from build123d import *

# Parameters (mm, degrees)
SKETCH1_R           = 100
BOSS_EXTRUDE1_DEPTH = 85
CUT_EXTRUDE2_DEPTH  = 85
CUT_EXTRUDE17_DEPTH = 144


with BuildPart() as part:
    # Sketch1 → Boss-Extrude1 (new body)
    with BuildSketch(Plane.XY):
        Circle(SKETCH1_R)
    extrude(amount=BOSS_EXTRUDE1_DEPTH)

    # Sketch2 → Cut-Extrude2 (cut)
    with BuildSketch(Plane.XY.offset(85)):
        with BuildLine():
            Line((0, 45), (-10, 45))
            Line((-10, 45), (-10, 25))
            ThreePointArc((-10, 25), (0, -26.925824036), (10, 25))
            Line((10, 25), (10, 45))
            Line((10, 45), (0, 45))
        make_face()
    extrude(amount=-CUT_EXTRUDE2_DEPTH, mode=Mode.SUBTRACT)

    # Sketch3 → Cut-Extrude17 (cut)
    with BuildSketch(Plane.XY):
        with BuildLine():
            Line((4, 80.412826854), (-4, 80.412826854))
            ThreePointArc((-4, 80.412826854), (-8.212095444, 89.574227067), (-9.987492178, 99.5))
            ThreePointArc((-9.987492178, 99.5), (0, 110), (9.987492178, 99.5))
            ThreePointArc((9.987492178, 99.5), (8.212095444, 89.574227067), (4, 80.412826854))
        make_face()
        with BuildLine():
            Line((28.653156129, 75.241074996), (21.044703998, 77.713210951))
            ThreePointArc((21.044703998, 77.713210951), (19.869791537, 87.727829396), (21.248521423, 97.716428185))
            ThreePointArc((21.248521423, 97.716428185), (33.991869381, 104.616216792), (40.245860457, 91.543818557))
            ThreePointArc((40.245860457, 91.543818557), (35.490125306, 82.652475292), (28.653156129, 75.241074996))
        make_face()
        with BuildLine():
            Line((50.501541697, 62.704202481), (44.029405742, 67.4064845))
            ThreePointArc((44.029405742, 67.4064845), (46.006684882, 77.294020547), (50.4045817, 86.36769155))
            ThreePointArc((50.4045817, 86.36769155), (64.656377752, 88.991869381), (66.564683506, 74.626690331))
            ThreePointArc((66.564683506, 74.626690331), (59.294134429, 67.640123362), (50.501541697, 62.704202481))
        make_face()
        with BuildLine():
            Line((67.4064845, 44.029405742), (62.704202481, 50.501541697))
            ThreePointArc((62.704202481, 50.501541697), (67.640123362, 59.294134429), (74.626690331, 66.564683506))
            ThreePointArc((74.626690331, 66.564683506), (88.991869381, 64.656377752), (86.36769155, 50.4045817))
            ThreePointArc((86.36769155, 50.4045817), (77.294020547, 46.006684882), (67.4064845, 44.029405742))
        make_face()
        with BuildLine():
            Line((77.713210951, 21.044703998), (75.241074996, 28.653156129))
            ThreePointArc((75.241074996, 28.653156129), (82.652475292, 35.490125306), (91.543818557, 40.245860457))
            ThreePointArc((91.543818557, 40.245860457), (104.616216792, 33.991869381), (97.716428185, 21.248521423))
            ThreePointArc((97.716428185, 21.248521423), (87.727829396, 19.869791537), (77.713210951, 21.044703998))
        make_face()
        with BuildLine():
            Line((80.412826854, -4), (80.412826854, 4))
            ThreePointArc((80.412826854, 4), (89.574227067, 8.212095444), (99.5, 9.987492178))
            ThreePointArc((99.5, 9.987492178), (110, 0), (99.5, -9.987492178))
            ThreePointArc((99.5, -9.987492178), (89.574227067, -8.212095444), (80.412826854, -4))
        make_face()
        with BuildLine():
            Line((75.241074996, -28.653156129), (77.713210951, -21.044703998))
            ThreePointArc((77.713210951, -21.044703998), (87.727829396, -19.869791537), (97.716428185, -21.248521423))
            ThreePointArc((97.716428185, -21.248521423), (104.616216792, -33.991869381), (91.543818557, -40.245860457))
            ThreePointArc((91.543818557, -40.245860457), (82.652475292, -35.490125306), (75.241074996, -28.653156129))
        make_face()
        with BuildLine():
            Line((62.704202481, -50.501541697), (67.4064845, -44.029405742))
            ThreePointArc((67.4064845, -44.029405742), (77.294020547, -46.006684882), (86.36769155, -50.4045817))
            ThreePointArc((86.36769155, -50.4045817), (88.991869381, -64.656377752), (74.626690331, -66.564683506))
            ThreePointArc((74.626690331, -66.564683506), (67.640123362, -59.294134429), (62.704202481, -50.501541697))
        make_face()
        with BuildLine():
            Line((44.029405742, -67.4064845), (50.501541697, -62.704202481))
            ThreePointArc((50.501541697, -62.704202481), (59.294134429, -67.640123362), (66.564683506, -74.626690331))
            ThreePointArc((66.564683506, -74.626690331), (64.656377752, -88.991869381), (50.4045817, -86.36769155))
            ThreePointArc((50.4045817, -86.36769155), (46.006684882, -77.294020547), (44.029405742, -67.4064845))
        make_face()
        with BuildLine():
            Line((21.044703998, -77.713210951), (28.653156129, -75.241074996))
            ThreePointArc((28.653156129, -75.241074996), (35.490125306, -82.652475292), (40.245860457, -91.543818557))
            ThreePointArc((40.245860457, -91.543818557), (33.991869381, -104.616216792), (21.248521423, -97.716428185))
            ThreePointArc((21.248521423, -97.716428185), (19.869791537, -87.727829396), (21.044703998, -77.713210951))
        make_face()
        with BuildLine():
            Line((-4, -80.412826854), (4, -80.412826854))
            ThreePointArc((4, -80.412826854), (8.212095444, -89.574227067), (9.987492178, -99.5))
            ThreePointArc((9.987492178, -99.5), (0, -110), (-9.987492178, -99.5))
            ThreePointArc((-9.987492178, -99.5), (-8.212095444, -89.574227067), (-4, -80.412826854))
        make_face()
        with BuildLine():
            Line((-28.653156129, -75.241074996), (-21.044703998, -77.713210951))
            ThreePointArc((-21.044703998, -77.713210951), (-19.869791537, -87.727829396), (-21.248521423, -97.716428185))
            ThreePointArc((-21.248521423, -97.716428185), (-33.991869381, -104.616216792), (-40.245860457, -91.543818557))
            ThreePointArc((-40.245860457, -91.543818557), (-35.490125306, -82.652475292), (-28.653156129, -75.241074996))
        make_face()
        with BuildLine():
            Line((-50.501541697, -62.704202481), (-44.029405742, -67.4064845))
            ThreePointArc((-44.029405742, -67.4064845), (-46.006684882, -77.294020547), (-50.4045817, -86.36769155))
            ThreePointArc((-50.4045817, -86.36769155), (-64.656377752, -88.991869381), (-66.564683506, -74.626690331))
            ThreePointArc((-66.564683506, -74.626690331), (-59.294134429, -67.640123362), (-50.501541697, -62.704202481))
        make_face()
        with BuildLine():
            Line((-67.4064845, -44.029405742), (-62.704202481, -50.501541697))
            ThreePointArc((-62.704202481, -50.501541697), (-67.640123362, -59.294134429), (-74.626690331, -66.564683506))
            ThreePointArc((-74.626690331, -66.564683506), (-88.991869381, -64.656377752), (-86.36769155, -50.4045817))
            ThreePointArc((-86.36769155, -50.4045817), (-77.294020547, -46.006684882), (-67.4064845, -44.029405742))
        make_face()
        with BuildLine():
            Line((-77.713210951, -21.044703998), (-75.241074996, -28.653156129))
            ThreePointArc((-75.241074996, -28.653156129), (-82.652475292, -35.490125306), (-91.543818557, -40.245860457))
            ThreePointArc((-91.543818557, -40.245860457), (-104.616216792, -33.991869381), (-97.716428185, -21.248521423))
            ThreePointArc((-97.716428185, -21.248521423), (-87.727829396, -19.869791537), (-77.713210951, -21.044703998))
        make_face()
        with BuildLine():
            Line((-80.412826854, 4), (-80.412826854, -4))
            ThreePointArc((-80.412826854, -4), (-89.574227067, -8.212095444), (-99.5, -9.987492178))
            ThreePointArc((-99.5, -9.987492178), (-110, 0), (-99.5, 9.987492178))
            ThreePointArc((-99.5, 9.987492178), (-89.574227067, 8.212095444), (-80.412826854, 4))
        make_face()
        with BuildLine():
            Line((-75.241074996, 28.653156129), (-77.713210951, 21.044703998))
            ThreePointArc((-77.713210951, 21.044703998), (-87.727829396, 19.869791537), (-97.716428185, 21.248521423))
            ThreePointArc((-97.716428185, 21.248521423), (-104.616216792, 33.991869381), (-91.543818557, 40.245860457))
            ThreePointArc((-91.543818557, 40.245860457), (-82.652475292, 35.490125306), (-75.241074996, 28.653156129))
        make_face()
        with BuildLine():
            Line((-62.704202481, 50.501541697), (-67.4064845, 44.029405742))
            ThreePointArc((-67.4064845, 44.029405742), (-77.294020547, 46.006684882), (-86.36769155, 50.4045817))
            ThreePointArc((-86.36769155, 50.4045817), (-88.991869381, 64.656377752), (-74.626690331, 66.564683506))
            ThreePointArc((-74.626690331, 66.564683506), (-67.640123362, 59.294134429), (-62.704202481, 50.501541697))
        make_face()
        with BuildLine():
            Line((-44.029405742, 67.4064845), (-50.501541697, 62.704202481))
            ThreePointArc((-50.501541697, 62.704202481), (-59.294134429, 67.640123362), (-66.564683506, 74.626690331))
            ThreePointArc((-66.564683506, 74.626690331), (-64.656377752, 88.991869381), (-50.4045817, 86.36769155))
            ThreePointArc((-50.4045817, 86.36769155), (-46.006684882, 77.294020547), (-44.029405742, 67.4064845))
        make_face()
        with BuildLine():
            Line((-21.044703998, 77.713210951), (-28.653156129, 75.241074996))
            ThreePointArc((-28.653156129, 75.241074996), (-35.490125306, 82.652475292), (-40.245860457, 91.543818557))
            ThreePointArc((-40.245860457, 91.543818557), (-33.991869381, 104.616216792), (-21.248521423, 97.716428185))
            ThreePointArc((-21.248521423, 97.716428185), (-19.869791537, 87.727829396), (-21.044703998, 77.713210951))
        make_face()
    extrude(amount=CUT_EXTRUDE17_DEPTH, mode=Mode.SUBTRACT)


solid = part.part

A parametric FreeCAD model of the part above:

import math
import FreeCAD as App
import Part
import Sketcher

V = App.Vector
Q = App.Units.Quantity

doc = App.newDocument("Part")
body = doc.addObject("PartDesign::Body", "Body")

# Sketch on XY plane
sketch1 = doc.addObject("Sketcher::SketchObject", "Sketch")
body.addObject(sketch1)
sketch1.AttachmentSupport = (doc.XY_Plane, [""])
sketch1.MapMode = "FlatFace"
sketch1.addGeometry(Part.Circle(V(0, 0, 0), V(0, 0, 1), 100), False)
sketch1.addConstraint([
    Sketcher.Constraint("Coincident", 0, 3, -1, 1),
    Sketcher.Constraint("Diameter", 0, 200.0),
])
pad1 = doc.addObject("PartDesign::Pad", "Pad")
body.addObject(pad1)
pad1.Profile = sketch1
pad1.Length = 85

# Sketch on XY plane
sketch2 = doc.addObject("Sketcher::SketchObject", "Sketch001")
body.addObject(sketch2)
sketch2.AttachmentSupport = (doc.XY_Plane, [""])
sketch2.MapMode = "FlatFace"
sketch2.AttachmentOffset = App.Placement(V(0, 0, 85), App.Rotation())
sketch2.addGeometry([
    Part.LineSegment(V(-10, 45, 0), V(-10, 25, 0)),
    Part.ArcOfCircle(Part.Circle(V(0, 0, 0), V(0, 0, 1), 26.925824), math.radians(111.801409), math.radians(428.198591)),
    Part.LineSegment(V(10, 25, 0), V(10, 45, 0)),
    Part.LineSegment(V(10, 45, 0), V(-10, 45, 0)),
], False)
sketch2.addConstraint([
    Sketcher.Constraint("Coincident", 0, 2, 1, 1),
    Sketcher.Constraint("Coincident", 1, 2, 2, 1),
    Sketcher.Constraint("Coincident", 2, 2, 3, 1),
    Sketcher.Constraint("Coincident", 3, 2, 0, 1),
    Sketcher.Constraint("Vertical", 0),
    Sketcher.Constraint("Vertical", 2),
    Sketcher.Constraint("Horizontal", 3),
    Sketcher.Constraint("Coincident", 1, 3, -1, 1),
    Sketcher.Constraint("Horizontal", 0, 2, 1, 2),
    Sketcher.Constraint("Equal", 3, 0),
    Sketcher.Constraint("DistanceX", 3, 2, 3, 1, 20.0),
    Sketcher.Constraint("DistanceY", -1, 1, 0, 2, 25.0),
])
pocket1 = doc.addObject("PartDesign::Pocket", "Pocket")
body.addObject(pocket1)
pocket1.Profile = sketch2
pocket1.Length = 85

# Sketch on XY plane
sketch3 = doc.addObject("Sketcher::SketchObject", "Sketch002")
body.addObject(sketch3)
sketch3.AttachmentSupport = (doc.XY_Plane, [""])
sketch3.MapMode = "FlatFace"
sketch3.addGeometry([
    Part.LineSegment(V(-4, 80.412827, 0), V(4, 80.412827, 0)),  # 0
    Part.ArcOfCircle(Part.Circle(V(-29.775539, 101.490641, 0), V(0, 0, 1), 39.812828), math.radians(-31.966456), math.radians(-2.865984)),  # 1
    Part.ArcOfCircle(Part.Circle(V(0, 100, 0), V(0, 0, 1), 10), math.radians(-2.865984), math.radians(182.865984)),  # 2
    Part.ArcOfCircle(Part.Circle(V(29.775539, 101.490641, 0), V(0, 0, 1), 39.812828), math.radians(-177.134016), math.radians(-148.033544)),  # 3
    Part.LineSegment(V(21.044704, 77.713211, 0), V(28.653156, 75.241075, 0)),  # 4
    Part.ArcOfCircle(Part.Circle(V(3.044113, 105.724483, 0), V(0, 0, 1), 39.812828), math.radians(-49.966456), math.radians(-20.865984)),  # 5
    Part.ArcOfCircle(Part.Circle(V(30.901699, 95.105652, 0), V(0, 0, 1), 10), math.radians(-20.865984), math.radians(164.865984)),  # 6
    Part.ArcOfCircle(Part.Circle(V(59.680553, 87.322188, 0), V(0, 0, 1), 39.812828), math.radians(164.865984), math.radians(193.966456)),  # 7
    Part.LineSegment(V(44.029406, 67.406485, 0), V(50.501542, 62.704202, 0)),  # 8
    Part.ArcOfCircle(Part.Circle(V(35.565785, 99.609276, 0), V(0, 0, 1), 39.812828), math.radians(-67.966456), math.radians(-38.865984)),  # 9
    Part.ArcOfCircle(Part.Circle(V(58.778525, 80.901699, 0), V(0, 0, 1), 10), math.radians(-38.865984), math.radians(146.865984)),  # 10
    Part.ArcOfCircle(Part.Circle(V(83.743619, 64.606031, 0), V(0, 0, 1), 39.812828), math.radians(146.865984), math.radians(175.966456)),  # 11
    Part.LineSegment(V(62.704202, 50.501542, 0), V(67.406485, 44.029406, 0)),  # 12
    Part.ArcOfCircle(Part.Circle(V(64.606031, 83.743619, 0), V(0, 0, 1), 39.812828), math.radians(-85.966456), math.radians(-56.865984)),  # 13
    Part.ArcOfCircle(Part.Circle(V(80.901699, 58.778525, 0), V(0, 0, 1), 10), math.radians(-56.865984), math.radians(128.865984)),  # 14
    Part.ArcOfCircle(Part.Circle(V(99.609276, 35.565785, 0), V(0, 0, 1), 39.812828), math.radians(128.865984), math.radians(157.966456)),  # 15
    Part.LineSegment(V(75.241075, 28.653156, 0), V(77.713211, 21.044704, 0)),  # 16
    Part.ArcOfCircle(Part.Circle(V(87.322188, 59.680553, 0), V(0, 0, 1), 39.812828), math.radians(-103.966456), math.radians(-74.865984)),  # 17
    Part.ArcOfCircle(Part.Circle(V(95.105652, 30.901699, 0), V(0, 0, 1), 10), math.radians(-74.865984), math.radians(110.865984)),  # 18
    Part.ArcOfCircle(Part.Circle(V(105.724483, 3.044113, 0), V(0, 0, 1), 39.812828), math.radians(110.865984), math.radians(139.966456)),  # 19
    Part.LineSegment(V(80.412827, 4, 0), V(80.412827, -4, 0)),  # 20
    Part.ArcOfCircle(Part.Circle(V(101.490641, 29.775539, 0), V(0, 0, 1), 39.812828), math.radians(-121.966456), math.radians(-92.865984)),  # 21
    Part.ArcOfCircle(Part.Circle(V(100, 0, 0), V(0, 0, 1), 10), math.radians(-92.865984), math.radians(92.865984)),  # 22
    Part.ArcOfCircle(Part.Circle(V(101.490641, -29.775539, 0), V(0, 0, 1), 39.812828), math.radians(92.865984), math.radians(121.966456)),  # 23
    Part.LineSegment(V(77.713211, -21.044704, 0), V(75.241075, -28.653156, 0)),  # 24
    Part.ArcOfCircle(Part.Circle(V(105.724483, -3.044113, 0), V(0, 0, 1), 39.812828), math.radians(-139.966456), math.radians(-110.865984)),  # 25
    Part.ArcOfCircle(Part.Circle(V(95.105652, -30.901699, 0), V(0, 0, 1), 10), math.radians(-110.865984), math.radians(74.865984)),  # 26
    Part.ArcOfCircle(Part.Circle(V(87.322188, -59.680553, 0), V(0, 0, 1), 39.812828), math.radians(74.865984), math.radians(103.966456)),  # 27
    Part.LineSegment(V(67.406485, -44.029406, 0), V(62.704202, -50.501542, 0)),  # 28
    Part.ArcOfCircle(Part.Circle(V(99.609276, -35.565785, 0), V(0, 0, 1), 39.812828), math.radians(-157.966456), math.radians(-128.865984)),  # 29
    Part.ArcOfCircle(Part.Circle(V(80.901699, -58.778525, 0), V(0, 0, 1), 10), math.radians(-128.865984), math.radians(56.865984)),  # 30
    Part.ArcOfCircle(Part.Circle(V(64.606031, -83.743619, 0), V(0, 0, 1), 39.812828), math.radians(56.865984), math.radians(85.966456)),  # 31
    Part.LineSegment(V(50.501542, -62.704202, 0), V(44.029406, -67.406485, 0)),  # 32
    Part.ArcOfCircle(Part.Circle(V(83.743619, -64.606031, 0), V(0, 0, 1), 39.812828), math.radians(-175.966456), math.radians(-146.865984)),  # 33
    Part.ArcOfCircle(Part.Circle(V(58.778525, -80.901699, 0), V(0, 0, 1), 10), math.radians(-146.865984), math.radians(38.865984)),  # 34
    Part.ArcOfCircle(Part.Circle(V(35.565785, -99.609276, 0), V(0, 0, 1), 39.812828), math.radians(38.865984), math.radians(67.966456)),  # 35
    Part.LineSegment(V(28.653156, -75.241075, 0), V(21.044704, -77.713211, 0)),  # 36
    Part.ArcOfCircle(Part.Circle(V(59.680553, -87.322188, 0), V(0, 0, 1), 39.812828), math.radians(166.033544), math.radians(195.134016)),  # 37
    Part.ArcOfCircle(Part.Circle(V(30.901699, -95.105652, 0), V(0, 0, 1), 10), math.radians(-164.865984), math.radians(20.865984)),  # 38
    Part.ArcOfCircle(Part.Circle(V(3.044113, -105.724483, 0), V(0, 0, 1), 39.812828), math.radians(20.865984), math.radians(49.966456)),  # 39
    Part.LineSegment(V(4, -80.412827, 0), V(-4, -80.412827, 0)),  # 40
    Part.ArcOfCircle(Part.Circle(V(29.775539, -101.490641, 0), V(0, 0, 1), 39.812828), math.radians(148.033544), math.radians(177.134016)),  # 41
    Part.ArcOfCircle(Part.Circle(V(0, -100, 0), V(0, 0, 1), 10), math.radians(177.134016), math.radians(362.865984)),  # 42
    Part.ArcOfCircle(Part.Circle(V(-29.775539, -101.490641, 0), V(0, 0, 1), 39.812828), math.radians(2.865984), math.radians(31.966456)),  # 43
    Part.LineSegment(V(-21.044704, -77.713211, 0), V(-28.653156, -75.241075, 0)),  # 44
    Part.ArcOfCircle(Part.Circle(V(-3.044113, -105.724483, 0), V(0, 0, 1), 39.812828), math.radians(130.033544), math.radians(159.134016)),  # 45
    Part.ArcOfCircle(Part.Circle(V(-30.901699, -95.105652, 0), V(0, 0, 1), 10), math.radians(159.134016), math.radians(344.865984)),  # 46
    Part.ArcOfCircle(Part.Circle(V(-59.680553, -87.322188, 0), V(0, 0, 1), 39.812828), math.radians(-15.134016), math.radians(13.966456)),  # 47
    Part.LineSegment(V(-44.029406, -67.406485, 0), V(-50.501542, -62.704202, 0)),  # 48
    Part.ArcOfCircle(Part.Circle(V(-35.565785, -99.609276, 0), V(0, 0, 1), 39.812828), math.radians(112.033544), math.radians(141.134016)),  # 49
    Part.ArcOfCircle(Part.Circle(V(-58.778525, -80.901699, 0), V(0, 0, 1), 10), math.radians(141.134016), math.radians(326.865984)),  # 50
    Part.ArcOfCircle(Part.Circle(V(-83.743619, -64.606031, 0), V(0, 0, 1), 39.812828), math.radians(-33.134016), math.radians(-4.033544)),  # 51
    Part.LineSegment(V(-62.704202, -50.501542, 0), V(-67.406485, -44.029406, 0)),  # 52
    Part.ArcOfCircle(Part.Circle(V(-64.606031, -83.743619, 0), V(0, 0, 1), 39.812828), math.radians(94.033544), math.radians(123.134016)),  # 53
    Part.ArcOfCircle(Part.Circle(V(-80.901699, -58.778525, 0), V(0, 0, 1), 10), math.radians(123.134016), math.radians(308.865984)),  # 54
    Part.ArcOfCircle(Part.Circle(V(-99.609276, -35.565785, 0), V(0, 0, 1), 39.812828), math.radians(-51.134016), math.radians(-22.033544)),  # 55
    Part.LineSegment(V(-75.241075, -28.653156, 0), V(-77.713211, -21.044704, 0)),  # 56
    Part.ArcOfCircle(Part.Circle(V(-87.322188, -59.680553, 0), V(0, 0, 1), 39.812828), math.radians(76.033544), math.radians(105.134016)),  # 57
    Part.ArcOfCircle(Part.Circle(V(-95.105652, -30.901699, 0), V(0, 0, 1), 10), math.radians(105.134016), math.radians(290.865984)),  # 58
    Part.ArcOfCircle(Part.Circle(V(-105.724483, -3.044113, 0), V(0, 0, 1), 39.812828), math.radians(-69.134016), math.radians(-40.033544)),  # 59
    Part.LineSegment(V(-80.412827, -4, 0), V(-80.412827, 4, 0)),  # 60
    Part.ArcOfCircle(Part.Circle(V(-101.490641, -29.775539, 0), V(0, 0, 1), 39.812828), math.radians(58.033544), math.radians(87.134016)),  # 61
    Part.ArcOfCircle(Part.Circle(V(-100, 0, 0), V(0, 0, 1), 10), math.radians(87.134016), math.radians(272.865984)),  # 62
    Part.ArcOfCircle(Part.Circle(V(-101.490641, 29.775539, 0), V(0, 0, 1), 39.812828), math.radians(-87.134016), math.radians(-58.033544)),  # 63
    Part.LineSegment(V(-77.713211, 21.044704, 0), V(-75.241075, 28.653156, 0)),  # 64
    Part.ArcOfCircle(Part.Circle(V(-105.724483, 3.044113, 0), V(0, 0, 1), 39.812828), math.radians(40.033544), math.radians(69.134016)),  # 65
    Part.ArcOfCircle(Part.Circle(V(-95.105652, 30.901699, 0), V(0, 0, 1), 10), math.radians(69.134016), math.radians(254.865984)),  # 66
    Part.ArcOfCircle(Part.Circle(V(-87.322188, 59.680553, 0), V(0, 0, 1), 39.812828), math.radians(-105.134016), math.radians(-76.033544)),  # 67
    Part.LineSegment(V(-67.406485, 44.029406, 0), V(-62.704202, 50.501542, 0)),  # 68
    Part.ArcOfCircle(Part.Circle(V(-99.609276, 35.565785, 0), V(0, 0, 1), 39.812828), math.radians(22.033544), math.radians(51.134016)),  # 69
    Part.ArcOfCircle(Part.Circle(V(-80.901699, 58.778525, 0), V(0, 0, 1), 10), math.radians(51.134016), math.radians(236.865984)),  # 70
    Part.ArcOfCircle(Part.Circle(V(-64.606031, 83.743619, 0), V(0, 0, 1), 39.812828), math.radians(-123.134016), math.radians(-94.033544)),  # 71
    Part.LineSegment(V(-50.501542, 62.704202, 0), V(-44.029406, 67.406485, 0)),  # 72
    Part.ArcOfCircle(Part.Circle(V(-83.743619, 64.606031, 0), V(0, 0, 1), 39.812828), math.radians(4.033544), math.radians(33.134016)),  # 73
    Part.ArcOfCircle(Part.Circle(V(-58.778525, 80.901699, 0), V(0, 0, 1), 10), math.radians(33.134016), math.radians(218.865984)),  # 74
    Part.ArcOfCircle(Part.Circle(V(-35.565785, 99.609276, 0), V(0, 0, 1), 39.812828), math.radians(-141.134016), math.radians(-112.033544)),  # 75
    Part.LineSegment(V(-28.653156, 75.241075, 0), V(-21.044704, 77.713211, 0)),  # 76
    Part.ArcOfCircle(Part.Circle(V(-59.680553, 87.322188, 0), V(0, 0, 1), 39.812828), math.radians(-13.966456), math.radians(15.134016)),  # 77
    Part.ArcOfCircle(Part.Circle(V(-30.901699, 95.105652, 0), V(0, 0, 1), 10), math.radians(15.134016), math.radians(200.865984)),  # 78
    Part.ArcOfCircle(Part.Circle(V(-3.044113, 105.724483, 0), V(0, 0, 1), 39.812828), math.radians(-159.134016), math.radians(-130.033544)),  # 79
], False)
sketch3.addConstraint([
    Sketcher.Constraint("Coincident", 0, 2, 1, 1),
    Sketcher.Constraint("Tangent", 1, 2, 2, 1),
    Sketcher.Constraint("Tangent", 2, 2, 3, 1),
    Sketcher.Constraint("Coincident", 3, 2, 0, 1),
    Sketcher.Constraint("Coincident", 4, 2, 5, 1),
    Sketcher.Constraint("Tangent", 5, 2, 6, 1),
    Sketcher.Constraint("Tangent", 6, 2, 7, 1),
    Sketcher.Constraint("Coincident", 7, 2, 4, 1),
    Sketcher.Constraint("Coincident", 8, 2, 9, 1),
    Sketcher.Constraint("Tangent", 9, 2, 10, 1),
    Sketcher.Constraint("Tangent", 10, 2, 11, 1),
    Sketcher.Constraint("Coincident", 11, 2, 8, 1),
    Sketcher.Constraint("Coincident", 12, 2, 13, 1),
    Sketcher.Constraint("Tangent", 13, 2, 14, 1),
    Sketcher.Constraint("Tangent", 14, 2, 15, 1),
    Sketcher.Constraint("Coincident", 15, 2, 12, 1),
    Sketcher.Constraint("Coincident", 16, 2, 17, 1),
    Sketcher.Constraint("Tangent", 17, 2, 18, 1),
    Sketcher.Constraint("Tangent", 18, 2, 19, 1),
    Sketcher.Constraint("Coincident", 19, 2, 16, 1),
    Sketcher.Constraint("Coincident", 20, 2, 21, 1),
    Sketcher.Constraint("Tangent", 21, 2, 22, 1),
    Sketcher.Constraint("Tangent", 22, 2, 23, 1),
    Sketcher.Constraint("Coincident", 23, 2, 20, 1),
    Sketcher.Constraint("Coincident", 24, 2, 25, 1),
    Sketcher.Constraint("Tangent", 25, 2, 26, 1),
    Sketcher.Constraint("Tangent", 26, 2, 27, 1),
    Sketcher.Constraint("Coincident", 27, 2, 24, 1),
    Sketcher.Constraint("Coincident", 28, 2, 29, 1),
    Sketcher.Constraint("Tangent", 29, 2, 30, 1),
    Sketcher.Constraint("Tangent", 30, 2, 31, 1),
    Sketcher.Constraint("Coincident", 31, 2, 28, 1),
    Sketcher.Constraint("Coincident", 32, 2, 33, 1),
    Sketcher.Constraint("Tangent", 33, 2, 34, 1),
    Sketcher.Constraint("Tangent", 34, 2, 35, 1),
    Sketcher.Constraint("Coincident", 35, 2, 32, 1),
    Sketcher.Constraint("Coincident", 36, 2, 37, 1),
    Sketcher.Constraint("Tangent", 37, 2, 38, 1),
    Sketcher.Constraint("Tangent", 38, 2, 39, 1),
    Sketcher.Constraint("Coincident", 39, 2, 36, 1),
    Sketcher.Constraint("Coincident", 40, 2, 41, 1),
    Sketcher.Constraint("Tangent", 41, 2, 42, 1),
    Sketcher.Constraint("Tangent", 42, 2, 43, 1),
    Sketcher.Constraint("Coincident", 43, 2, 40, 1),
    Sketcher.Constraint("Coincident", 44, 2, 45, 1),
    Sketcher.Constraint("Tangent", 45, 2, 46, 1),
    Sketcher.Constraint("Tangent", 46, 2, 47, 1),
    Sketcher.Constraint("Coincident", 47, 2, 44, 1),
    Sketcher.Constraint("Coincident", 48, 2, 49, 1),
    Sketcher.Constraint("Tangent", 49, 2, 50, 1),
    Sketcher.Constraint("Tangent", 50, 2, 51, 1),
    Sketcher.Constraint("Coincident", 51, 2, 48, 1),
    Sketcher.Constraint("Coincident", 52, 2, 53, 1),
    Sketcher.Constraint("Tangent", 53, 2, 54, 1),
    Sketcher.Constraint("Tangent", 54, 2, 55, 1),
    Sketcher.Constraint("Coincident", 55, 2, 52, 1),
    Sketcher.Constraint("Coincident", 56, 2, 57, 1),
    Sketcher.Constraint("Tangent", 57, 2, 58, 1),
    Sketcher.Constraint("Tangent", 58, 2, 59, 1),
    Sketcher.Constraint("Coincident", 59, 2, 56, 1),
    Sketcher.Constraint("Coincident", 60, 2, 61, 1),
    Sketcher.Constraint("Tangent", 61, 2, 62, 1),
    Sketcher.Constraint("Tangent", 62, 2, 63, 1),
    Sketcher.Constraint("Coincident", 63, 2, 60, 1),
    Sketcher.Constraint("Coincident", 64, 2, 65, 1),
    Sketcher.Constraint("Tangent", 65, 2, 66, 1),
    Sketcher.Constraint("Tangent", 66, 2, 67, 1),
    Sketcher.Constraint("Coincident", 67, 2, 64, 1),
    Sketcher.Constraint("Coincident", 68, 2, 69, 1),
    Sketcher.Constraint("Tangent", 69, 2, 70, 1),
    Sketcher.Constraint("Tangent", 70, 2, 71, 1),
    Sketcher.Constraint("Coincident", 71, 2, 68, 1),
    Sketcher.Constraint("Coincident", 72, 2, 73, 1),
    Sketcher.Constraint("Tangent", 73, 2, 74, 1),
    Sketcher.Constraint("Tangent", 74, 2, 75, 1),
    Sketcher.Constraint("Coincident", 75, 2, 72, 1),
    Sketcher.Constraint("Coincident", 76, 2, 77, 1),
    Sketcher.Constraint("Tangent", 77, 2, 78, 1),
    Sketcher.Constraint("Tangent", 78, 2, 79, 1),
    Sketcher.Constraint("Coincident", 79, 2, 76, 1),
    Sketcher.Constraint("Horizontal", 0),
    Sketcher.Constraint("Vertical", 20),
    Sketcher.Constraint("Horizontal", 40),
    Sketcher.Constraint("Vertical", 60),
    Sketcher.Constraint("Equal", 1, 3),
    Sketcher.Constraint("Equal", 3, 5),
    Sketcher.Constraint("Equal", 2, 6),
    Sketcher.Constraint("Equal", 5, 7),
    Sketcher.Constraint("Equal", 7, 9),
    Sketcher.Constraint("Equal", 6, 10),
    Sketcher.Constraint("Equal", 9, 11),
    Sketcher.Constraint("Equal", 11, 13),
    Sketcher.Constraint("Equal", 10, 14),
    Sketcher.Constraint("Equal", 13, 15),
    Sketcher.Constraint("Equal", 15, 17),
    Sketcher.Constraint("Equal", 14, 18),
    Sketcher.Constraint("Equal", 17, 19),
    Sketcher.Constraint("Equal", 19, 21),
    Sketcher.Constraint("Equal", 18, 22),
    Sketcher.Constraint("Equal", 21, 23),
    Sketcher.Constraint("Equal", 23, 25),
    Sketcher.Constraint("Equal", 22, 26),
    Sketcher.Constraint("Equal", 25, 27),
    Sketcher.Constraint("Equal", 27, 29),
    Sketcher.Constraint("Equal", 26, 30),
    Sketcher.Constraint("Equal", 29, 31),
    Sketcher.Constraint("Equal", 31, 33),
    Sketcher.Constraint("Equal", 30, 34),
    Sketcher.Constraint("Equal", 33, 35),
    Sketcher.Constraint("Equal", 35, 37),
    Sketcher.Constraint("Equal", 34, 38),
    Sketcher.Constraint("Equal", 37, 39),
    Sketcher.Constraint("Equal", 39, 41),
    Sketcher.Constraint("Equal", 38, 42),
    Sketcher.Constraint("Equal", 41, 43),
    Sketcher.Constraint("Equal", 43, 45),
    Sketcher.Constraint("Equal", 42, 46),
    Sketcher.Constraint("Equal", 45, 47),
    Sketcher.Constraint("Equal", 47, 49),
    Sketcher.Constraint("Equal", 46, 50),
    Sketcher.Constraint("Equal", 49, 51),
    Sketcher.Constraint("Equal", 51, 53),
    Sketcher.Constraint("Equal", 50, 54),
    Sketcher.Constraint("Equal", 53, 55),
    Sketcher.Constraint("Equal", 55, 57),
    Sketcher.Constraint("Equal", 54, 58),
    Sketcher.Constraint("Equal", 57, 59),
    Sketcher.Constraint("Equal", 59, 61),
    Sketcher.Constraint("Equal", 58, 62),
    Sketcher.Constraint("Equal", 61, 63),
    Sketcher.Constraint("Equal", 63, 65),
    Sketcher.Constraint("Equal", 62, 66),
    Sketcher.Constraint("Equal", 65, 67),
    Sketcher.Constraint("Equal", 67, 69),
    Sketcher.Constraint("Equal", 66, 70),
    Sketcher.Constraint("Equal", 69, 71),
    Sketcher.Constraint("Equal", 71, 73),
    Sketcher.Constraint("Equal", 70, 74),
    Sketcher.Constraint("Equal", 73, 75),
    Sketcher.Constraint("Equal", 75, 77),
    Sketcher.Constraint("Equal", 74, 78),
    Sketcher.Constraint("Equal", 77, 79),
    Sketcher.Constraint("Symmetric", 1, 3, 41, 3, -1, 1),
    Sketcher.Constraint("Symmetric", 3, 3, 43, 3, -1, 1),
    Sketcher.Constraint("Symmetric", 5, 3, 45, 3, -1, 1),
    Sketcher.Constraint("Symmetric", 7, 3, 47, 3, -1, 1),
    Sketcher.Constraint("Symmetric", 9, 3, 49, 3, -1, 1),
    Sketcher.Constraint("Symmetric", 11, 3, 51, 3, -1, 1),
    Sketcher.Constraint("Symmetric", 13, 3, 53, 3, -1, 1),
    Sketcher.Constraint("Symmetric", 15, 3, 55, 3, -1, 1),
    Sketcher.Constraint("Symmetric", 17, 3, 57, 3, -1, 1),
    Sketcher.Constraint("Symmetric", 19, 3, 59, 3, -1, 1),
    Sketcher.Constraint("Symmetric", 21, 3, 61, 3, -1, 1),
    Sketcher.Constraint("Symmetric", 23, 3, 63, 3, -1, 1),
    Sketcher.Constraint("Symmetric", 25, 3, 65, 3, -1, 1),
    Sketcher.Constraint("Symmetric", 27, 3, 67, 3, -1, 1),
    Sketcher.Constraint("Symmetric", 29, 3, 69, 3, -1, 1),
    Sketcher.Constraint("Symmetric", 31, 3, 71, 3, -1, 1),
    Sketcher.Constraint("Symmetric", 33, 3, 73, 3, -1, 1),
    Sketcher.Constraint("Symmetric", 35, 3, 75, 3, -1, 1),
    Sketcher.Constraint("Symmetric", 37, 3, 77, 3, -1, 1),
    Sketcher.Constraint("Symmetric", 39, 3, 79, 3, -1, 1),
    Sketcher.Constraint("Symmetric", 1, 3, 3, 3, -2),
    Sketcher.Constraint("Symmetric", 39, 3, 45, 3, -2),
    Sketcher.Constraint("Symmetric", 37, 3, 47, 3, -2),
    Sketcher.Constraint("Symmetric", 35, 3, 49, 3, -2),
    Sketcher.Constraint("Symmetric", 33, 3, 51, 3, -2),
    Sketcher.Constraint("Symmetric", 31, 3, 53, 3, -2),
    Sketcher.Constraint("Symmetric", 29, 3, 55, 3, -2),
    Sketcher.Constraint("Symmetric", 27, 3, 57, 3, -2),
    Sketcher.Constraint("Symmetric", 25, 3, 59, 3, -2),
    Sketcher.Constraint("Symmetric", 23, 3, 61, 3, -2),
    Sketcher.Constraint("Perpendicular", 4, 24),
    Sketcher.Constraint("Perpendicular", 8, 28),
    Sketcher.Constraint("Perpendicular", 12, 32),
    Sketcher.Constraint("Perpendicular", 16, 36),
    Sketcher.Constraint("Perpendicular", 24, 44),
    Sketcher.Constraint("Perpendicular", 28, 48),
    Sketcher.Constraint("Perpendicular", 32, 52),
    Sketcher.Constraint("Perpendicular", 36, 56),
    Sketcher.Constraint("Perpendicular", 44, 64),
    Sketcher.Constraint("Perpendicular", 48, 68),
    Sketcher.Constraint("Perpendicular", 52, 72),
    Sketcher.Constraint("Perpendicular", 56, 76),
    Sketcher.Constraint("Horizontal", 39, 2, 44, 2),
    Sketcher.Constraint("Horizontal", 36, 2, 47, 2),
    Sketcher.Constraint("Horizontal", 35, 2, 48, 2),
    Sketcher.Constraint("Horizontal", 32, 2, 51, 2),
    Sketcher.Constraint("Horizontal", 31, 2, 52, 2),
    Sketcher.Constraint("Horizontal", 27, 2, 56, 2),
    Sketcher.Constraint("Horizontal", 23, 2, 60, 2),
    Sketcher.Constraint("Horizontal", 19, 2, 64, 2),
    Sketcher.Constraint("Horizontal", 15, 2, 68, 2),
    Sketcher.Constraint("Horizontal", 11, 2, 72, 2),
    Sketcher.Constraint("Horizontal", 7, 2, 76, 2),
    Sketcher.Constraint("Vertical", 19, 2, 24, 2),
    Sketcher.Constraint("Vertical", 15, 2, 28, 2),
    Sketcher.Constraint("Vertical", 11, 2, 32, 2),
    Sketcher.Constraint("Vertical", 7, 2, 36, 2),
    Sketcher.Constraint("Vertical", 3, 2, 40, 2),
    Sketcher.Constraint("Equal", 40, 20),
    Sketcher.Constraint("Equal", 4, 8),
    Sketcher.Constraint("Equal", 8, 12),
    Sketcher.Constraint("Equal", 12, 16),
    Sketcher.Constraint("Radius", 2, 10.0),
    Sketcher.Constraint("DistanceX", 0, 1, 0, 2, 8.0),
    Sketcher.Constraint("Angle", 4, Q("-18 deg")),
    Sketcher.Constraint("Angle", 8, Q("-36 deg")),
    Sketcher.Constraint("Distance", 4, 8.0),
    Sketcher.Constraint("DistanceY", -1, 1, 2, 3, 100.0),
    Sketcher.Constraint("DistanceX", -1, 1, 22, 3, 100.0),
    Sketcher.Constraint("DistanceY", -1, 1, 1, 2, 99.5),
    Sketcher.Constraint("DistanceX", -1, 1, 21, 2, 99.5),
    Sketcher.Constraint("Radius", 1, 39.812828),
    Sketcher.Constraint("DistanceX", -1, 1, 6, 3, 30.901699),
    Sketcher.Constraint("DistanceY", -1, 1, 10, 3, 80.901699),
    Sketcher.Constraint("DistanceX", -1, 1, 14, 3, 80.901699),
    Sketcher.Constraint("DistanceY", -1, 1, 18, 3, 30.901699),
    Sketcher.Constraint("DistanceY", -1, 1, 6, 3, 95.105652),
    Sketcher.Constraint("DistanceY", -1, 1, 7, 3, 87.322188),
    Sketcher.Constraint("DistanceX", -1, 1, 11, 3, 83.743619),
    Sketcher.Constraint("DistanceY", -1, 1, 11, 3, 64.606031),
    Sketcher.Constraint("DistanceX", -1, 1, 13, 3, 64.606031),
    Sketcher.Constraint("DistanceY", -1, 1, 13, 3, 83.743619),
    Sketcher.Constraint("DistanceX", -1, 1, 17, 3, 87.322188),
    Sketcher.Constraint("DistanceX", -1, 1, 18, 3, 95.105652),
    Sketcher.Constraint("DistanceX", -1, 1, 5, 2, 40.24586),
    Sketcher.Constraint("DistanceX", -1, 1, 8, 2, 50.501542),
    Sketcher.Constraint("DistanceX", -1, 1, 14, 2, 74.62669),
    Sketcher.Constraint("DistanceX", -1, 1, 16, 2, 77.713211),
])
pocket2 = doc.addObject("PartDesign::Pocket", "Pocket001")
body.addObject(pocket2)
pocket2.Profile = sketch3
pocket2.Length = 144
pocket2.Reversed = True

doc.recompute()
